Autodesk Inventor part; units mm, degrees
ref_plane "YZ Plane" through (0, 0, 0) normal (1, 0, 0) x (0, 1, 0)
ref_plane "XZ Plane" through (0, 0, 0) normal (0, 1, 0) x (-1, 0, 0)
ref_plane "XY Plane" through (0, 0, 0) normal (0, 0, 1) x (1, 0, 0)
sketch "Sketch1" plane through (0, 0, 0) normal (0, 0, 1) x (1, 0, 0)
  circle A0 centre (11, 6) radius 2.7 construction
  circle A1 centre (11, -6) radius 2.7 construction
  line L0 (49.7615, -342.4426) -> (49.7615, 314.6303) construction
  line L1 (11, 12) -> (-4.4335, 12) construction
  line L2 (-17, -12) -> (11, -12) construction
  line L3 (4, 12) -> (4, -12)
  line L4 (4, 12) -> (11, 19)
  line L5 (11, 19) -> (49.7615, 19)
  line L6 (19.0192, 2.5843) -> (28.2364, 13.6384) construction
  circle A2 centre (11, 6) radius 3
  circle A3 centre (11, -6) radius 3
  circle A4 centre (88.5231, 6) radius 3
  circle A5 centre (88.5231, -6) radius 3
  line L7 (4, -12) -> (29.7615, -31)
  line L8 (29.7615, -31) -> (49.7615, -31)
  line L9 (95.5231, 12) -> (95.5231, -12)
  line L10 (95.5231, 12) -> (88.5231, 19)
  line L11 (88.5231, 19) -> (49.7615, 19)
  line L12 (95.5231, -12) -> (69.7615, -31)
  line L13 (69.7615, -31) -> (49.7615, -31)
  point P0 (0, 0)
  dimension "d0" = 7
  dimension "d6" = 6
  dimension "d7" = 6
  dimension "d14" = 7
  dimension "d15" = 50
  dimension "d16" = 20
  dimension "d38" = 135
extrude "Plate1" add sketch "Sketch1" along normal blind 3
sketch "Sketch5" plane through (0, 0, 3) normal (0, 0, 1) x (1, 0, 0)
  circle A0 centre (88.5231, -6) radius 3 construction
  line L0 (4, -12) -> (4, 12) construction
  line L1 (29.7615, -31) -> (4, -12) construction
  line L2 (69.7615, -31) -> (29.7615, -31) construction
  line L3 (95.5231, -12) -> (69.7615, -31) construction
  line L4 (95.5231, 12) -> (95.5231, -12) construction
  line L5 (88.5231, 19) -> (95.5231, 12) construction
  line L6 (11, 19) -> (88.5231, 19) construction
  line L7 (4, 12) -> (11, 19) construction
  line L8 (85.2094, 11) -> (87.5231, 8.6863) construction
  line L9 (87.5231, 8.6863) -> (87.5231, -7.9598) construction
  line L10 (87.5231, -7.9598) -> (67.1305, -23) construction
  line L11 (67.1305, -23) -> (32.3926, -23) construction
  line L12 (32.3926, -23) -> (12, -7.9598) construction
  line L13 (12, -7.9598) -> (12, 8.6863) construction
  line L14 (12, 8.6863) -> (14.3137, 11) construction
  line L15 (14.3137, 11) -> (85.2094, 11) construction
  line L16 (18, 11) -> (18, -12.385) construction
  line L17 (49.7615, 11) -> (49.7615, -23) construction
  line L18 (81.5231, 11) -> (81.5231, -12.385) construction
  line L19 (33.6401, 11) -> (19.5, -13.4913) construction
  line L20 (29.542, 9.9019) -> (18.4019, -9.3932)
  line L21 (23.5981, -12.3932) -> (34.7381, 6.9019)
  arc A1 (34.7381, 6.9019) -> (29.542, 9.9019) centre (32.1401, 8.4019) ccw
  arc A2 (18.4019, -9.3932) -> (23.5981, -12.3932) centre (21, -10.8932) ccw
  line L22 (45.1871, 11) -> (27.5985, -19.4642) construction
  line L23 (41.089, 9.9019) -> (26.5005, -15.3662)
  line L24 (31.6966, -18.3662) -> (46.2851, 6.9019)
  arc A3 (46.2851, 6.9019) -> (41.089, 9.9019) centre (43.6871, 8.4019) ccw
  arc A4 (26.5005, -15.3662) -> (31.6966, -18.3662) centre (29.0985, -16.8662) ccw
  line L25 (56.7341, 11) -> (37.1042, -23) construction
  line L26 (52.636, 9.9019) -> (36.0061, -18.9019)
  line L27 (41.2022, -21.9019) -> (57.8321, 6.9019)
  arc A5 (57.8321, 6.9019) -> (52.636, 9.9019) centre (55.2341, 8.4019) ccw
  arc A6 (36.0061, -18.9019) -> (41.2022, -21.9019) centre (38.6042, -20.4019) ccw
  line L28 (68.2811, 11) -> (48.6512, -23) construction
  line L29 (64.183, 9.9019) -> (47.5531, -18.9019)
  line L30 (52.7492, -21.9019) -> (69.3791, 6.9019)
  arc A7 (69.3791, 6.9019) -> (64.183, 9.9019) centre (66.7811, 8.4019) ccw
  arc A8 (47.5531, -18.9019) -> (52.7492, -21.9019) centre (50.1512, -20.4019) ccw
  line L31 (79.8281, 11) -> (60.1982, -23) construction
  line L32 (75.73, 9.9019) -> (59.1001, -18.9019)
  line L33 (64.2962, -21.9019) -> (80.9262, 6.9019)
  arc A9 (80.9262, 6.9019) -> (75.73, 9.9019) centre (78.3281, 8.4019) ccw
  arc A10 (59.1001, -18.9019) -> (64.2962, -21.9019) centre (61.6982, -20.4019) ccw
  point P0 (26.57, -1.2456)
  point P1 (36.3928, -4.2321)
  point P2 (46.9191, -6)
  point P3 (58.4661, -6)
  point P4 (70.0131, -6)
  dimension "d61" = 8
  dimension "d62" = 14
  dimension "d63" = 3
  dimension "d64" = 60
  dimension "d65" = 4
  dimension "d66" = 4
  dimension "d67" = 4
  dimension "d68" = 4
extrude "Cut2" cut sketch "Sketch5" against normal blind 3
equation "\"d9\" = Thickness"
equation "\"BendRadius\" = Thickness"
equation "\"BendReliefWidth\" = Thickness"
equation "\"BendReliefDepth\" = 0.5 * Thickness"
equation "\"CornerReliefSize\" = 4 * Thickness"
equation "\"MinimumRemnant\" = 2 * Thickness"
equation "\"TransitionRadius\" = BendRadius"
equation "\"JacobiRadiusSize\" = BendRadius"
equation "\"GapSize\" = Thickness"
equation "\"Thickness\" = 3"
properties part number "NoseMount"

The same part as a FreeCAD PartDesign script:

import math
import FreeCAD as App
import Part
import Sketcher
Q = App.Units.Quantity


def add_polygon(sketch, points):
    """Adds a closed chain of lines whose ends are joined by coincident constraints."""
    first, n = sketch.GeometryCount, len(points)
    for a, b in zip(points, points[1:] + points[:1]):
        sketch.addGeometry(Part.LineSegment(App.Vector(*a, 0), App.Vector(*b, 0)), False)
    for i in range(n):
        sketch.addConstraint(Sketcher.Constraint("Coincident", first + i, 2, first + (i + 1) % n, 1))

doc = App.newDocument("Part")
body = doc.addObject("PartDesign::Body", "Body")

# Sketch on XY plane
sketch1 = doc.addObject("Sketcher::SketchObject", "Sketch")
body.addObject(sketch1)
sketch1.AttachmentSupport = (doc.XY_Plane, [""])
sketch1.MapMode = "FlatFace"
add_polygon(sketch1, [(11, 19), (4, 12), (4, -12), (29.8, -31), (69.8, -31), (95.5, -12), (95.5, 12), (88.5, 19)])  # lines 0-7
sketch1.addGeometry(Part.Circle(App.Vector(11, -6, 0), App.Vector(0, 0, 1), 3), False)  # 8
sketch1.addGeometry(Part.Circle(App.Vector(11, 6, 0), App.Vector(0, 0, 1), 3), False)  # 9
sketch1.addGeometry(Part.Circle(App.Vector(88.5, -6, 0), App.Vector(0, 0, 1), 3), False)  # 10
sketch1.addGeometry(Part.Circle(App.Vector(88.5, 6, 0), App.Vector(0, 0, 1), 3), False)  # 11
sketch1.addConstraint(Sketcher.Constraint("Vertical", 1))
sketch1.addConstraint(Sketcher.Constraint("Horizontal", 3))
sketch1.addConstraint(Sketcher.Constraint("Vertical", 5))
sketch1.addConstraint(Sketcher.Constraint("Horizontal", 7))
sketch1.addConstraint(Sketcher.Constraint("Equal", 8, 9))
sketch1.addConstraint(Sketcher.Constraint("Equal", 9, 10))
sketch1.addConstraint(Sketcher.Constraint("Equal", 10, 11))
sketch1.addConstraint(Sketcher.Constraint("Symmetric", 8, 3, 9, 3, -1))
sketch1.addConstraint(Sketcher.Constraint("Symmetric", 10, 3, 11, 3, -1))
sketch1.addConstraint(Sketcher.Constraint("Perpendicular", 0, 6))
sketch1.addConstraint(Sketcher.Constraint("Horizontal", 8, 3, 10, 3))
sketch1.addConstraint(Sketcher.Constraint("Horizontal", 1, 2, 4, 2))
sketch1.addConstraint(Sketcher.Constraint("Horizontal", 0, 2, 5, 2))
sketch1.addConstraint(Sketcher.Constraint("Vertical", 11, 3, 6, 2))
sketch1.addConstraint(Sketcher.Constraint("Vertical", 9, 3, 7, 2))
sketch1.addConstraint(Sketcher.Constraint("Equal", 2, 4))
sketch1.addConstraint(Sketcher.Constraint("Equal", 0, 6))
sketch1.addConstraint(Sketcher.Constraint("Diameter", 8, Q("6 mm")))
sketch1.addConstraint(Sketcher.Constraint("DistanceY", 8, 3, -1, 1, Q("6 mm")))
sketch1.addConstraint(Sketcher.Constraint("DistanceX", 0, 2, 9, 3, Q("7 mm")))
sketch1.addConstraint(Sketcher.Constraint("DistanceY", 9, 3, 0, 2, Q("6 mm")))
sketch1.addConstraint(Sketcher.Constraint("DistanceY", 1, 2, 8, 3, Q("6 mm")))
sketch1.addConstraint(Sketcher.Constraint("DistanceY", 3, 2, 6, 2, Q("50 mm")))
sketch1.addConstraint(Sketcher.Constraint("DistanceX", 3, 1, 3, 2, Q("40 mm")))
sketch1.addConstraint(Sketcher.Constraint("DistanceX", -1, 1, 8, 3, Q("11 mm")))
sketch1.addConstraint(Sketcher.Constraint("Angle", 2, Q("-36.41 deg")))
pad1 = doc.addObject("PartDesign::Pad", "Pad")
body.addObject(pad1)
pad1.Profile = sketch1
pad1.Length = 3

# Sketch on XY plane
sketch2 = doc.addObject("Sketcher::SketchObject", "Sketch001")
body.addObject(sketch2)
sketch2.AttachmentSupport = (doc.XY_Plane, [""])
sketch2.MapMode = "FlatFace"
sketch2.AttachmentOffset = App.Placement(App.Vector(0, 0, 3), App.Rotation())
sketch2.addGeometry(Part.ArcOfCircle(Part.Circle(App.Vector(32.1, 8.4, 0), App.Vector(0, 0, 1), 3), math.radians(-30), math.radians(150)), False)
sketch2.addGeometry(Part.LineSegment(App.Vector(29.5, 9.9, 0), App.Vector(18.4, -9.4, 0)), False)
sketch2.addGeometry(Part.ArcOfCircle(Part.Circle(App.Vector(21, -10.9, 0), App.Vector(0, 0, 1), 3), math.radians(150), math.radians(330)), False)
sketch2.addGeometry(Part.LineSegment(App.Vector(23.6, -12.4, 0), App.Vector(34.7, 6.9, 0)), False)
sketch2.addGeometry(Part.ArcOfCircle(Part.Circle(App.Vector(43.7, 8.4, 0), App.Vector(0, 0, 1), 3), math.radians(-30), math.radians(150)), False)
sketch2.addGeometry(Part.LineSegment(App.Vector(41.1, 9.9, 0), App.Vector(26.5, -15.4, 0)), False)
sketch2.addGeometry(Part.ArcOfCircle(Part.Circle(App.Vector(29.1, -16.9, 0), App.Vector(0, 0, 1), 3), math.radians(150), math.radians(330)), False)
sketch2.addGeometry(Part.LineSegment(App.Vector(31.7, -18.4, 0), App.Vector(46.3, 6.9, 0)), False)
sketch2.addGeometry(Part.ArcOfCircle(Part.Circle(App.Vector(55.2, 8.4, 0), App.Vector(0, 0, 1), 3), math.radians(-30), math.radians(150)), False)
sketch2.addGeometry(Part.LineSegment(App.Vector(52.6, 9.9, 0), App.Vector(36, -18.9, 0)), False)
sketch2.addGeometry(Part.ArcOfCircle(Part.Circle(App.Vector(38.6, -20.4, 0), App.Vector(0, 0, 1), 3), math.radians(150), math.radians(330)), False)
sketch2.addGeometry(Part.LineSegment(App.Vector(41.2, -21.9, 0), App.Vector(57.8, 6.9, 0)), False)
sketch2.addGeometry(Part.ArcOfCircle(Part.Circle(App.Vector(66.8, 8.4, 0), App.Vector(0, 0, 1), 3), math.radians(-30), math.radians(150)), False)
sketch2.addGeometry(Part.LineSegment(App.Vector(64.2, 9.9, 0), App.Vector(47.6, -18.9, 0)), False)
sketch2.addGeometry(Part.ArcOfCircle(Part.Circle(App.Vector(50.2, -20.4, 0), App.Vector(0, 0, 1), 3), math.radians(150), math.radians(330)), False)
sketch2.addGeometry(Part.LineSegment(App.Vector(52.7, -21.9, 0), App.Vector(69.4, 6.9, 0)), False)
sketch2.addGeometry(Part.ArcOfCircle(Part.Circle(App.Vector(78.3, 8.4, 0), App.Vector(0, 0, 1), 3), math.radians(-30), math.radians(150)), False)
sketch2.addGeometry(Part.LineSegment(App.Vector(75.7, 9.9, 0), App.Vector(59.1, -18.9, 0)), False)
sketch2.addGeometry(Part.ArcOfCircle(Part.Circle(App.Vector(61.7, -20.4, 0), App.Vector(0, 0, 1), 3), math.radians(150), math.radians(330)), False)
sketch2.addGeometry(Part.LineSegment(App.Vector(64.3, -21.9, 0), App.Vector(80.9, 6.9, 0)), False)
sketch2.addConstraint(Sketcher.Constraint("Tangent", 0, 2, 1, 1))
sketch2.addConstraint(Sketcher.Constraint("Tangent", 1, 2, 2, 1))
sketch2.addConstraint(Sketcher.Constraint("Tangent", 2, 2, 3, 1))
sketch2.addConstraint(Sketcher.Constraint("Tangent", 3, 2, 0, 1))
sketch2.addConstraint(Sketcher.Constraint("Tangent", 4, 2, 5, 1))
sketch2.addConstraint(Sketcher.Constraint("Tangent", 5, 2, 6, 1))
sketch2.addConstraint(Sketcher.Constraint("Tangent", 6, 2, 7, 1))
sketch2.addConstraint(Sketcher.Constraint("Tangent", 7, 2, 4, 1))
sketch2.addConstraint(Sketcher.Constraint("Tangent", 8, 2, 9, 1))
sketch2.addConstraint(Sketcher.Constraint("Tangent", 9, 2, 10, 1))
sketch2.addConstraint(Sketcher.Constraint("Tangent", 10, 2, 11, 1))
sketch2.addConstraint(Sketcher.Constraint("Tangent", 11, 2, 8, 1))
sketch2.addConstraint(Sketcher.Constraint("Tangent", 12, 2, 13, 1))
sketch2.addConstraint(Sketcher.Constraint("Tangent", 13, 2, 14, 1))
sketch2.addConstraint(Sketcher.Constraint("Tangent", 14, 2, 15, 1))
sketch2.addConstraint(Sketcher.Constraint("Tangent", 15, 2, 12, 1))
sketch2.addConstraint(Sketcher.Constraint("Tangent", 16, 2, 17, 1))
sketch2.addConstraint(Sketcher.Constraint("Tangent", 17, 2, 18, 1))
sketch2.addConstraint(Sketcher.Constraint("Tangent", 18, 2, 19, 1))
sketch2.addConstraint(Sketcher.Constraint("Tangent", 19, 2, 16, 1))
sketch2.addConstraint(Sketcher.Constraint("Equal", 0, 2))
sketch2.addConstraint(Sketcher.Constraint("Equal", 2, 4))
sketch2.addConstraint(Sketcher.Constraint("Equal", 4, 6))
sketch2.addConstraint(Sketcher.Constraint("Equal", 6, 8))
sketch2.addConstraint(Sketcher.Constraint("Equal", 8, 10))
sketch2.addConstraint(Sketcher.Constraint("Equal", 10, 12))
sketch2.addConstraint(Sketcher.Constraint("Equal", 12, 14))
sketch2.addConstraint(Sketcher.Constraint("Equal", 14, 16))
sketch2.addConstraint(Sketcher.Constraint("Equal", 16, 18))
sketch2.addConstraint(Sketcher.Constraint("Parallel", 3, 5))
sketch2.addConstraint(Sketcher.Constraint("Parallel", 7, 9))
sketch2.addConstraint(Sketcher.Constraint("Parallel", 11, 13))
sketch2.addConstraint(Sketcher.Constraint("Parallel", 15, 17))
sketch2.addConstraint(Sketcher.Constraint("Horizontal", 0, 3, 4, 3))
sketch2.addConstraint(Sketcher.Constraint("Horizontal", 4, 3, 8, 3))
sketch2.addConstraint(Sketcher.Constraint("Horizontal", 8, 3, 12, 3))
sketch2.addConstraint(Sketcher.Constraint("Horizontal", 10, 3, 14, 3))
sketch2.addConstraint(Sketcher.Constraint("Horizontal", 12, 3, 16, 3))
sketch2.addConstraint(Sketcher.Constraint("Horizontal", 14, 3, 18, 3))
sketch2.addConstraint(Sketcher.Constraint("Radius", 0, Q("3 mm")))
sketch2.addConstraint(Sketcher.Constraint("Angle", 3, Q("60 deg")))
sketch2.addConstraint(Sketcher.Constraint("DistanceX", -1, 1, 2, 3, Q("21 mm")))
sketch2.addConstraint(Sketcher.Constraint("DistanceX", -1, 1, 17, 2, Q("59.1 mm")))
sketch2.addConstraint(Sketcher.Constraint("Distance", 1, Q("22.28 mm")))
sketch2.addConstraint(Sketcher.Constraint("DistanceX", -1, 1, 16, 2, Q("75.73 mm")))
sketch2.addConstraint(Sketcher.Constraint("Distance", 5, Q("29.177 mm")))
sketch2.addConstraint(Sketcher.Constraint("DistanceY", -1, 1, 0, 3, Q("8.402 mm")))
sketch2.addConstraint(Sketcher.Constraint("DistanceX", -1, 1, 4, 3, Q("43.687 mm")))
sketch2.addConstraint(Sketcher.Constraint("DistanceX", -1, 1, 8, 3, Q("55.234 mm")))
sketch2.addConstraint(Sketcher.Constraint("DistanceX", -1, 1, 12, 3, Q("66.781 mm")))
pocket1 = doc.addObject("PartDesign::Pocket", "Pocket")
body.addObject(pocket1)
pocket1.Profile = sketch2
pocket1.Length = 3

doc.recompute()
